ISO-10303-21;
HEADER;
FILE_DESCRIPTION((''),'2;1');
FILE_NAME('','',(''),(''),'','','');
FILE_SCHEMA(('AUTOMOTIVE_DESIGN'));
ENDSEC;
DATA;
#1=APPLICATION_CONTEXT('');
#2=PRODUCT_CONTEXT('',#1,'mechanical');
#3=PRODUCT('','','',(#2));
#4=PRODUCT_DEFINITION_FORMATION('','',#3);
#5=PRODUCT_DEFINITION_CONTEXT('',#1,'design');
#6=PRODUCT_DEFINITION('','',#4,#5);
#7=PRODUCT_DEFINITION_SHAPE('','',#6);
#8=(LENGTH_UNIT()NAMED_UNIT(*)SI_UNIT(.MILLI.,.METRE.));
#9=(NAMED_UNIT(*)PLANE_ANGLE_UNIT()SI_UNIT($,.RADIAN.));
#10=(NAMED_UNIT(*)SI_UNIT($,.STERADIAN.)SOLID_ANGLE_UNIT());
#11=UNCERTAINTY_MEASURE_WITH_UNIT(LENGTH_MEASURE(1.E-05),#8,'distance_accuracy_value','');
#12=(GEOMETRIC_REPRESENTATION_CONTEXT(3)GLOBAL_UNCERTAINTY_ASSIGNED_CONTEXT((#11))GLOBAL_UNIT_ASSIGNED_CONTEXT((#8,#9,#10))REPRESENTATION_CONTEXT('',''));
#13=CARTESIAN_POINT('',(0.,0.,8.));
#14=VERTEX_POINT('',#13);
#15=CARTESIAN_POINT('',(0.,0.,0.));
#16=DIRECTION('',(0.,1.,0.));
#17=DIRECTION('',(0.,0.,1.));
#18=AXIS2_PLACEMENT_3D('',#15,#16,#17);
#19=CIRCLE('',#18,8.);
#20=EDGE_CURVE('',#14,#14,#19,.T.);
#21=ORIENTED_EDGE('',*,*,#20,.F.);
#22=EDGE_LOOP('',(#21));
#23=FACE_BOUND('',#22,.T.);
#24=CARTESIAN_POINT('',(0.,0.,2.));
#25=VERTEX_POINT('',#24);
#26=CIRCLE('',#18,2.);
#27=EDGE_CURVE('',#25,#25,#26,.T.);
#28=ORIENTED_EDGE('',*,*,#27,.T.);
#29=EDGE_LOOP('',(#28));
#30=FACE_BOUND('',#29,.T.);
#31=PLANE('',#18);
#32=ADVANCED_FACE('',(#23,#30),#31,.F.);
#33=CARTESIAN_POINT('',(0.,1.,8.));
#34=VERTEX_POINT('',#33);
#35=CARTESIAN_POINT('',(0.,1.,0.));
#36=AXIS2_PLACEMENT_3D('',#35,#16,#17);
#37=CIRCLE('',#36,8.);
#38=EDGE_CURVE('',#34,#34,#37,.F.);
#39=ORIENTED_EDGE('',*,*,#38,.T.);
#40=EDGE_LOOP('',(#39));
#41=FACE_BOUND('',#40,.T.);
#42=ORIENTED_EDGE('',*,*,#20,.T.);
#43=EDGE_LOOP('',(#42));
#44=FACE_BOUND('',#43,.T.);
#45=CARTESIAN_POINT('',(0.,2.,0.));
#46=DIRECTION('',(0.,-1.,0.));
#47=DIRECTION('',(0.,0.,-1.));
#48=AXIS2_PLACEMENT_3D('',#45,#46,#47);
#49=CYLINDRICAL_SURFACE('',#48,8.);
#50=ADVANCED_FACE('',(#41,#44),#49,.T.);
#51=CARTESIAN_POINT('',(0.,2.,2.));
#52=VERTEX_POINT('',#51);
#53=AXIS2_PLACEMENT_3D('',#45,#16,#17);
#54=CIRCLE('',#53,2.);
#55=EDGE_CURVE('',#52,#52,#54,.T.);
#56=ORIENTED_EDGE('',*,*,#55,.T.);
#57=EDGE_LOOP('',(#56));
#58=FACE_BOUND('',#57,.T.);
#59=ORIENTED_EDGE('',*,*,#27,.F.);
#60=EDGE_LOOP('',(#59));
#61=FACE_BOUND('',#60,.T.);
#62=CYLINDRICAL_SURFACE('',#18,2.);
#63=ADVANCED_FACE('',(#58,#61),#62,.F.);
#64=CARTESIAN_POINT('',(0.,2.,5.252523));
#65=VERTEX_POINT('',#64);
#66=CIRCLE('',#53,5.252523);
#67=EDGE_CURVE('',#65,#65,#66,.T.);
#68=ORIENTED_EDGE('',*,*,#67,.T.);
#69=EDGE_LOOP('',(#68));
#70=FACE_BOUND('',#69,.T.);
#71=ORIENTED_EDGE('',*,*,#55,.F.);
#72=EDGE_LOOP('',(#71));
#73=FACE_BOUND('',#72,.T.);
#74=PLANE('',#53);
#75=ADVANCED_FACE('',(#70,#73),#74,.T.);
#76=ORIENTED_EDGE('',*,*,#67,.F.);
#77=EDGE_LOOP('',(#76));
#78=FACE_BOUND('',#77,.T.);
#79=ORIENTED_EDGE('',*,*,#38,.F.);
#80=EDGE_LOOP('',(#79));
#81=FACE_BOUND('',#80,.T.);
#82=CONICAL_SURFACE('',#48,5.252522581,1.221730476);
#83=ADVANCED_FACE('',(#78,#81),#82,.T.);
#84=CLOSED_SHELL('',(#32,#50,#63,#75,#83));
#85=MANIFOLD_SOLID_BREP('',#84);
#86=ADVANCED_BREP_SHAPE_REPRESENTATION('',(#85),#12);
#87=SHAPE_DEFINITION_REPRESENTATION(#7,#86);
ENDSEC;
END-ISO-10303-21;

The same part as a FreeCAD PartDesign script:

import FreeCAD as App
import Part
import Sketcher

V = App.Vector


def edges_at(feature, points):
    """Names of the edges that pass closest to the given points."""
    edges = feature.Shape.Edges
    near = lambda p: min(range(len(edges)), key=lambda i: edges[i].distToShape(Part.Vertex(*p))[0])
    return sorted({f"Edge{near(p) + 1}" for p in points})

doc = App.newDocument("Part")
body = doc.addObject("PartDesign::Body", "Body")

# Sketch on XZ plane
sketch1 = body.newObject("Sketcher::SketchObject", "Sketch")
sketch1.AttachmentSupport = (doc.getObject("XZ_Plane"), [""])
sketch1.MapMode = "FlatFace"
sketch1.addGeometry(Part.Circle(V(0, 0, 0), V(0, 0, 1), 8), False)
sketch1.addConstraint([
    Sketcher.Constraint("Coincident", 0, 3, -1, 1),
    Sketcher.Constraint("Diameter", 0, 16.0),
])
pad1 = body.newObject("PartDesign::Pad", "Pad")
pad1.Profile = sketch1
pad1.Length = 2
pad1.Reversed = True
doc.recompute()

chamfer = body.newObject("PartDesign::Chamfer", "Chamfer")
chamfer.Base = (pad1, edges_at(pad1, [(-8, 2, 0)]))
chamfer.ChamferType = "Two distances"
chamfer.Size = 1
chamfer.Size2 = 2.747477

# Sketch on XZ plane
sketch2 = body.newObject("Sketcher::SketchObject", "Sketch001")
sketch2.AttachmentSupport = (doc.getObject("XZ_Plane"), [""])
sketch2.MapMode = "FlatFace"
sketch2.AttachmentOffset = App.Placement(V(0, 0, -2), App.Rotation())
sketch2.addGeometry(Part.Circle(V(0, 0, 0), V(0, 0, 1), 2), False)
sketch2.addConstraint([
    Sketcher.Constraint("Coincident", 0, 3, -1, 1),
    Sketcher.Constraint("Diameter", 0, 4.0),
])
pocket1 = body.newObject("PartDesign::Pocket", "Pocket")
pocket1.Profile = sketch2
pocket1.Type = "ThroughAll"
pocket1.Reversed = True

doc.recompute()
